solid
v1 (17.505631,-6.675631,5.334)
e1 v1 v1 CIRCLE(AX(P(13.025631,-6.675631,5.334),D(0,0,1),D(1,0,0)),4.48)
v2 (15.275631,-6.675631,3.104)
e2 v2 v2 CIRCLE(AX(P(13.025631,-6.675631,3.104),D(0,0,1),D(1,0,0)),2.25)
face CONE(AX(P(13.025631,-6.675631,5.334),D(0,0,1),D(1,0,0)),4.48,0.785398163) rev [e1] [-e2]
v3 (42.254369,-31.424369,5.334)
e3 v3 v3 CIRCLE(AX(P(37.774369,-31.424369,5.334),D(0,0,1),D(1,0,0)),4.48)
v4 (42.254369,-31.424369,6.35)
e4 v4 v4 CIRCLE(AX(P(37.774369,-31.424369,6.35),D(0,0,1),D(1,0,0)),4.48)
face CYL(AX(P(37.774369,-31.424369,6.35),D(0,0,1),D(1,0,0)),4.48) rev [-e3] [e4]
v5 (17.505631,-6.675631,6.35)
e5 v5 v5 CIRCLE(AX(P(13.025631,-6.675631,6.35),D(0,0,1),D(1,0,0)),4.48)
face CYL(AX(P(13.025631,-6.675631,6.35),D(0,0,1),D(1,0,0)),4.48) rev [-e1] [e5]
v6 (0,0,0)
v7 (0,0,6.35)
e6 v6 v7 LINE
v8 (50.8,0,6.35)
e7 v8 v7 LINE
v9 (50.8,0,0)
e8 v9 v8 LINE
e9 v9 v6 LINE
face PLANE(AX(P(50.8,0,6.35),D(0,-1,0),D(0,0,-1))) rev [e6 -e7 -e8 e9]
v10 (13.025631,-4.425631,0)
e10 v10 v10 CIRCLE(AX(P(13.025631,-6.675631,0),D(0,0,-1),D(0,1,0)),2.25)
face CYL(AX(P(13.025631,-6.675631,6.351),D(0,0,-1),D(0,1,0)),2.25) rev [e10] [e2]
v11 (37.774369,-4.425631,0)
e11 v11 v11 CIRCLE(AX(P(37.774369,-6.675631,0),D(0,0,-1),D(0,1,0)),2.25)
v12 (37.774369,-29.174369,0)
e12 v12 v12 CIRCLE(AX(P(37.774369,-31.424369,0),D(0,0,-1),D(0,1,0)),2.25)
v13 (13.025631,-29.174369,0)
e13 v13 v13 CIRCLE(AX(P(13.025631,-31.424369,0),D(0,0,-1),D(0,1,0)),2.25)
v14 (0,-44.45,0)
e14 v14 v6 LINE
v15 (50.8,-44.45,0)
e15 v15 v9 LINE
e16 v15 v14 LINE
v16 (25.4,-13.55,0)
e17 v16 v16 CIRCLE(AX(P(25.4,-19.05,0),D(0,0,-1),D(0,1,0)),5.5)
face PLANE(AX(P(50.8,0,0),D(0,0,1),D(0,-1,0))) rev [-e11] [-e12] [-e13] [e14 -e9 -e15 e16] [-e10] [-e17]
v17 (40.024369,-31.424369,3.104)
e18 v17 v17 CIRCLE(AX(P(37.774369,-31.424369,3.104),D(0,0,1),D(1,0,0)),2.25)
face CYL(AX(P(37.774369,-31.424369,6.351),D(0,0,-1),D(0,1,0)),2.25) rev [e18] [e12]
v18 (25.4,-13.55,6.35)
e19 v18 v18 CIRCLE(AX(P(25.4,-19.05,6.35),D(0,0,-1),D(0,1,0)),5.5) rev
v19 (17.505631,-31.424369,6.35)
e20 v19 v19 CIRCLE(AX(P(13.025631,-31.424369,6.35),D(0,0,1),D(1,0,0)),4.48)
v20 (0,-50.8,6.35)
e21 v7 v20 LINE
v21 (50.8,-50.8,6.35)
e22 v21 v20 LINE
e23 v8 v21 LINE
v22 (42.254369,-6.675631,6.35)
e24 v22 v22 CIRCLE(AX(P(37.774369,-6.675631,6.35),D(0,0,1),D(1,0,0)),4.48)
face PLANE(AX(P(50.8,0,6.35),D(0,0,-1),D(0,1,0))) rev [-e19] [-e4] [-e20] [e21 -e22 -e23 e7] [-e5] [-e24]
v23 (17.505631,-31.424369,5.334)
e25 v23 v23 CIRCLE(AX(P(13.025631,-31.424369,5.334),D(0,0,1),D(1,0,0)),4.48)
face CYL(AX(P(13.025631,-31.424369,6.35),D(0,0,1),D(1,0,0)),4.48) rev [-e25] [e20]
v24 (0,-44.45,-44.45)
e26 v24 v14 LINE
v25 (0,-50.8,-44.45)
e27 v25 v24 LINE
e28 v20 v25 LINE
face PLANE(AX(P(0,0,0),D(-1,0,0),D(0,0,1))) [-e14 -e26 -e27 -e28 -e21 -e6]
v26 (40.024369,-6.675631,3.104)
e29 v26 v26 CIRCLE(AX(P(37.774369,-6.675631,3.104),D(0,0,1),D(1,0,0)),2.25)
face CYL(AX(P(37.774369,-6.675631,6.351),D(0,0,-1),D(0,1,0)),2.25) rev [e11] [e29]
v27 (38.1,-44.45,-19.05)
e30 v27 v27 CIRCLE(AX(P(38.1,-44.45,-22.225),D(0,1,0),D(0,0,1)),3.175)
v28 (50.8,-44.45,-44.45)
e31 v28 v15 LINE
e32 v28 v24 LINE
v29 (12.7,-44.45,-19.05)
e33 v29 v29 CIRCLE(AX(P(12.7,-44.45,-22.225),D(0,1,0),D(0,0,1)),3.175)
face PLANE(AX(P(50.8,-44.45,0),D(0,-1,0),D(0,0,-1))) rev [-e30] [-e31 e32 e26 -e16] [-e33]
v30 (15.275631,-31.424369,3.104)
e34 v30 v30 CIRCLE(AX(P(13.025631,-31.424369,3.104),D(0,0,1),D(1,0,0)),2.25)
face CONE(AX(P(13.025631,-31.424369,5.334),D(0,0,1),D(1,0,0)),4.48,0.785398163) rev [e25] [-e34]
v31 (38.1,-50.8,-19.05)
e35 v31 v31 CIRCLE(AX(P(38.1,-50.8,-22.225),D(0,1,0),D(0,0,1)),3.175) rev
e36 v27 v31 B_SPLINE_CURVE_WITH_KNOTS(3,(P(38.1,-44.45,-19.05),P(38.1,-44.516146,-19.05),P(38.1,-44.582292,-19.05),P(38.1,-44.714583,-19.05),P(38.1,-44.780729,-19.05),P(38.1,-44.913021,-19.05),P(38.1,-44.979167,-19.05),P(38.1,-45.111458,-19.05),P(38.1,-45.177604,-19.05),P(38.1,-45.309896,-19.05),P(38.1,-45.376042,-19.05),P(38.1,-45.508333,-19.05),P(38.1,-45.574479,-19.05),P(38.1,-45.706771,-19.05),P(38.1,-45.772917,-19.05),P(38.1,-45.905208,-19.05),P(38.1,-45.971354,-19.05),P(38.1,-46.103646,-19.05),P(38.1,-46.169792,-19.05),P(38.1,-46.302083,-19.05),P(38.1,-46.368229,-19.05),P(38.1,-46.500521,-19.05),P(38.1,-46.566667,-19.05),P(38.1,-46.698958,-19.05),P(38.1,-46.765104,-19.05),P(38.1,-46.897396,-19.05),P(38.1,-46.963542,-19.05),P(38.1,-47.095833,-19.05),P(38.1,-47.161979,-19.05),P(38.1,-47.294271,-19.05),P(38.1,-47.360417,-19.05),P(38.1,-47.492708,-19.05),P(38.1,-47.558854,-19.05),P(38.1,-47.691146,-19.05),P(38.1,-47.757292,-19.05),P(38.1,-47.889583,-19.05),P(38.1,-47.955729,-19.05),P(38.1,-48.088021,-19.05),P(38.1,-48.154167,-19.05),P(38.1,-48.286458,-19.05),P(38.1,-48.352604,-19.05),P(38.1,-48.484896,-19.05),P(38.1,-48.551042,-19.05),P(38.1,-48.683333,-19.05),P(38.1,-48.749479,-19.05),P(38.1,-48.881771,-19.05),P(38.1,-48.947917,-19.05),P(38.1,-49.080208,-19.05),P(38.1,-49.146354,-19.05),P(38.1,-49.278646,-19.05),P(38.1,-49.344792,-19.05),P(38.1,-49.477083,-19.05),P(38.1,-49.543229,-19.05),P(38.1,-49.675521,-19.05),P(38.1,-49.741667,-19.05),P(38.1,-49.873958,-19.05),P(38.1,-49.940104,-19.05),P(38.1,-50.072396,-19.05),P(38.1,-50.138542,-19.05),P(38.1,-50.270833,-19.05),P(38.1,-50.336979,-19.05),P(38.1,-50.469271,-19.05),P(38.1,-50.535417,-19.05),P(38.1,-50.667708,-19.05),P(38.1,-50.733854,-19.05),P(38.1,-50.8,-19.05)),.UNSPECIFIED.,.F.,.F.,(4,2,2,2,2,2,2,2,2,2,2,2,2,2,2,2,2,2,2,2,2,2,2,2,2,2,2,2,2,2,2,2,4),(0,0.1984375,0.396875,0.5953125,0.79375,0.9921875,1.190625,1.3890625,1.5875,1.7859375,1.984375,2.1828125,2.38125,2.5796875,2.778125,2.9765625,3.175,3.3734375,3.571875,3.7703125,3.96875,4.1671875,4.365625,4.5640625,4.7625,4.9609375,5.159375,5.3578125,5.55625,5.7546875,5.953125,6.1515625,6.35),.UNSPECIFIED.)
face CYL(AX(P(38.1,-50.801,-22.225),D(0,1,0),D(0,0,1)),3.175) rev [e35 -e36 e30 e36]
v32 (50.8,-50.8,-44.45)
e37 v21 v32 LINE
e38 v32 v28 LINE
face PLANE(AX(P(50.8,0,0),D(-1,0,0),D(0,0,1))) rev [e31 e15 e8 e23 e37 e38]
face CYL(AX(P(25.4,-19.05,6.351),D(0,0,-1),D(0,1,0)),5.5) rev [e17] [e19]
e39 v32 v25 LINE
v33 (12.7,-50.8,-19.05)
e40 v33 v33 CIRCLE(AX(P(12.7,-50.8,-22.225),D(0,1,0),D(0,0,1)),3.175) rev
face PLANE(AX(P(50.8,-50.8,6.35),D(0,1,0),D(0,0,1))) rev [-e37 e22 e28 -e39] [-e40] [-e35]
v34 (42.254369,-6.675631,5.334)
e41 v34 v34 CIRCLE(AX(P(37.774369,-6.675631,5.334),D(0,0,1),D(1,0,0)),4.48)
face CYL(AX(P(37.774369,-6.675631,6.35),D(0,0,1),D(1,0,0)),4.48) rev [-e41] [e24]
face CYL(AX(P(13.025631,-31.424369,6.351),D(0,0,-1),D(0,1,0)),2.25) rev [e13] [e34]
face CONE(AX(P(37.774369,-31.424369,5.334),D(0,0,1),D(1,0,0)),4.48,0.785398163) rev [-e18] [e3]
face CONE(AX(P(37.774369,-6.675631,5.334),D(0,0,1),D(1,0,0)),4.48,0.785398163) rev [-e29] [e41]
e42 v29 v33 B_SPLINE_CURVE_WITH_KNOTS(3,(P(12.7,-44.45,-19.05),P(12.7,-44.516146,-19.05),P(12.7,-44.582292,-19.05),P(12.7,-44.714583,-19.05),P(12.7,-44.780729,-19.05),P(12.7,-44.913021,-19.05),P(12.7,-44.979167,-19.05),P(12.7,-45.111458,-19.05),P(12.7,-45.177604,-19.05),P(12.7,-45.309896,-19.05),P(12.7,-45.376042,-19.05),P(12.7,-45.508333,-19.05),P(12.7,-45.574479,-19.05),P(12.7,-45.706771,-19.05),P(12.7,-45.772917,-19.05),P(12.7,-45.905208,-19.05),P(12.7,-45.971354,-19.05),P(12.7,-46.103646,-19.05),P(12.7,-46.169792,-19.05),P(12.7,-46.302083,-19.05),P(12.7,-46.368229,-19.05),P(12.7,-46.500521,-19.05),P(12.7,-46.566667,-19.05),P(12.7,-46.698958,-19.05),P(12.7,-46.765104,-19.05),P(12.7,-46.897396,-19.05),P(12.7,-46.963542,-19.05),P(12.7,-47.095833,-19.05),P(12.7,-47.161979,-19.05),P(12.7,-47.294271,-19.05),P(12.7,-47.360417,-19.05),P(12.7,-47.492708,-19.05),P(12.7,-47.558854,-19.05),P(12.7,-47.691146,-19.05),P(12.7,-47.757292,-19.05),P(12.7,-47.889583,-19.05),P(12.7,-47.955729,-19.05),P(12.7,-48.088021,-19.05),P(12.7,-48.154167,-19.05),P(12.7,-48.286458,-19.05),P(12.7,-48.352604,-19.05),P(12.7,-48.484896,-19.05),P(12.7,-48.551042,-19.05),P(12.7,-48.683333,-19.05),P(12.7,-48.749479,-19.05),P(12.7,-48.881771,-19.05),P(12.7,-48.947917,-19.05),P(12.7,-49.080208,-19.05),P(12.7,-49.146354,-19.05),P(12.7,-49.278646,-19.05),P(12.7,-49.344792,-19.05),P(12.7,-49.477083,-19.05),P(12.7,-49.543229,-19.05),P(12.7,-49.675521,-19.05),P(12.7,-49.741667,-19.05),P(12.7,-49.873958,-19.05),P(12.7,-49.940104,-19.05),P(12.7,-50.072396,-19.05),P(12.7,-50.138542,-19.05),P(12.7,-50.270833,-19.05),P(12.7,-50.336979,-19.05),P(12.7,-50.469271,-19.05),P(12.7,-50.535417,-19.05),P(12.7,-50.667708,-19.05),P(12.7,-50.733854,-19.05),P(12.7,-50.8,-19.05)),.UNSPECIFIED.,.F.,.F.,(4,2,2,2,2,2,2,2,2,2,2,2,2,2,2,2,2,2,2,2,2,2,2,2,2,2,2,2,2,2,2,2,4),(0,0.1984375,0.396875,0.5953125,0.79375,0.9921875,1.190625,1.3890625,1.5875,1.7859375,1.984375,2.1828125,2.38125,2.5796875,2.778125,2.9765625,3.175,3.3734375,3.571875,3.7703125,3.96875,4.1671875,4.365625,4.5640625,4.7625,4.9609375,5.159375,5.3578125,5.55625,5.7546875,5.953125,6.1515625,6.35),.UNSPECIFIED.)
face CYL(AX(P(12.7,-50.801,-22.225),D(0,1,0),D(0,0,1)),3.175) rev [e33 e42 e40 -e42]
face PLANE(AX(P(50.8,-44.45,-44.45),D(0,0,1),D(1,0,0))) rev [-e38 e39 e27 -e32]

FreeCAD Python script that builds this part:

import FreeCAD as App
import Part
import Sketcher

V = App.Vector
Q = App.Units.Quantity


def add_polygon(sketch, points):
    """Adds a closed chain of lines whose ends are joined by coincident constraints."""
    first, n = sketch.GeometryCount, len(points)
    for a, b in zip(points, points[1:] + points[:1]):
        sketch.addGeometry(Part.LineSegment(App.Vector(*a, 0), App.Vector(*b, 0)), False)
    for i in range(n):
        sketch.addConstraint(Sketcher.Constraint("Coincident", first + i, 2, first + (i + 1) % n, 1))

doc = App.newDocument("Part")
params = doc.addObject("Spreadsheet::Sheet", "Params")
for row, (alias, value) in enumerate([
    ("sketch1_width", "2 in"),
    ("sketch1_width2", "1.75 in"),
    ("pad1_length", "2 in"),
    ("sketch7_diameter", "0.25 in"),
    ("sketch8_diameter", "0.25 in"),
    ("sketch9_height", "2 in"),
    ("sketch9_height2", "0.04 in"),
    ("groove_angle", "360 deg"),
    ("linearpattern_pitch", "24.748737 mm"),
    ("linearpattern2_pitch", "35 mm"),
    ("linearpattern3_pitch", "24.748737 mm"),
], start=1):
    params.set(f"A{row}", alias)
    params.set(f"B{row}", "=" + value)
    params.setAlias(f"B{row}", alias)

body = doc.addObject("PartDesign::Body", "Body")

# Sketch on YZ plane
sketch1 = body.newObject("Sketcher::SketchObject", "Sketch")
sketch1.AttachmentSupport = (doc.getObject("YZ_Plane"), [""])
sketch1.MapMode = "FlatFace"
add_polygon(sketch1, [(-44, 0), (0, 0), (0, 6), (-51, 6), (-51, -44), (-44, -44)])  # lines 0-5
sketch1.addConstraint([
    Sketcher.Constraint("Horizontal", 0),
    Sketcher.Constraint("Vertical", 1),
    Sketcher.Constraint("Horizontal", 2),
    Sketcher.Constraint("Vertical", 3),
    Sketcher.Constraint("Horizontal", 4),
    Sketcher.Constraint("Vertical", 5),
    Sketcher.Constraint("Coincident", 0, 2, -1, 1),
    Sketcher.Constraint("Equal", 4, 1),
    Sketcher.Constraint("Equal", 2, 3),
    Sketcher.Constraint("DistanceX", 2, 2, 2, 1, Q("2 in")),
    Sketcher.Constraint("DistanceX", 0, 1, 0, 2, Q("1.75 in")),
])
sketch1.setExpression("Constraints[15]", "Params.sketch1_width")
sketch1.setExpression("Constraints[16]", "Params.sketch1_width2")
pad1 = body.newObject("PartDesign::Pad", "Pad")
pad1.Profile = sketch1
pad1.setExpression("Length", "Params.pad1_length")

# Sketch on XY plane
sketch2 = body.newObject("Sketcher::SketchObject", "Sketch001")
sketch2.AttachmentSupport = (doc.getObject("XY_Plane"), [""])
sketch2.MapMode = "FlatFace"
sketch2.addGeometry(Part.Circle(V(13, -6.7, 0), V(0, 0, 1), 2.2), False)
sketch2.addConstraint([
    Sketcher.Constraint("Diameter", 0, Q("4.5 mm")),
    Sketcher.Constraint("DistanceX", -1, 1, 0, 3, Q("13.025631 mm")),
    Sketcher.Constraint("DistanceY", 0, 3, -1, 1, Q("6.675631 mm")),
])
pocket1 = body.newObject("PartDesign::Pocket", "Pocket")
pocket1.Profile = sketch2
pocket1.Type = "UpToFirst"
pocket1.Reversed = True

# Sketch on XY plane
sketch3 = body.newObject("Sketcher::SketchObject", "Sketch002")
sketch3.AttachmentSupport = (doc.getObject("XY_Plane"), [""])
sketch3.MapMode = "FlatFace"
sketch3.addGeometry(Part.Circle(V(13, -31.4, 0), V(0, 0, 1), 2.2), False)
sketch3.addConstraint([
    Sketcher.Constraint("Diameter", 0, Q("4.5 mm")),
    Sketcher.Constraint("DistanceX", -1, 1, 0, 3, Q("13.025631 mm")),
    Sketcher.Constraint("DistanceY", 0, 3, -1, 1, Q("31.424369 mm")),
])
pocket2 = body.newObject("PartDesign::Pocket", "Pocket001")
pocket2.Profile = sketch3
pocket2.Type = "UpToFirst"
pocket2.Reversed = True

# Sketch on XY plane
sketch4 = body.newObject("Sketcher::SketchObject", "Sketch003")
sketch4.AttachmentSupport = (doc.getObject("XY_Plane"), [""])
sketch4.MapMode = "FlatFace"
sketch4.addGeometry(Part.Circle(V(37.8, -31.4, 0), V(0, 0, 1), 2.2), False)
sketch4.addConstraint([
    Sketcher.Constraint("Diameter", 0, Q("4.5 mm")),
    Sketcher.Constraint("DistanceX", -1, 1, 0, 3, Q("37.774369 mm")),
    Sketcher.Constraint("DistanceY", 0, 3, -1, 1, Q("31.424369 mm")),
])
pocket3 = body.newObject("PartDesign::Pocket", "Pocket002")
pocket3.Profile = sketch4
pocket3.Type = "UpToFirst"
pocket3.Reversed = True

# Sketch on XY plane
sketch5 = body.newObject("Sketcher::SketchObject", "Sketch004")
sketch5.AttachmentSupport = (doc.getObject("XY_Plane"), [""])
sketch5.MapMode = "FlatFace"
sketch5.addGeometry(Part.Circle(V(37.8, -6.7, 0), V(0, 0, 1), 2.2), False)
sketch5.addConstraint([
    Sketcher.Constraint("Diameter", 0, Q("4.5 mm")),
    Sketcher.Constraint("DistanceX", -1, 1, 0, 3, Q("37.774369 mm")),
    Sketcher.Constraint("DistanceY", 0, 3, -1, 1, Q("6.675631 mm")),
])
pocket4 = body.newObject("PartDesign::Pocket", "Pocket003")
pocket4.Profile = sketch5
pocket4.Type = "UpToFirst"
pocket4.Reversed = True

# Sketch on XY plane
sketch6 = body.newObject("Sketcher::SketchObject", "Sketch005")
sketch6.AttachmentSupport = (doc.getObject("XY_Plane"), [""])
sketch6.MapMode = "FlatFace"
sketch6.addGeometry(Part.Circle(V(25, -19, 0), V(0, 0, 1), 6), False)
sketch6.addConstraint([
    Sketcher.Constraint("DistanceX", -1, 1, 0, 3, Q("1 in")),
    Sketcher.Constraint("Diameter", 0, Q("11 mm")),
    Sketcher.Constraint("DistanceY", 0, 3, -1, 1, Q("0.75 in")),
])
pocket5 = body.newObject("PartDesign::Pocket", "Pocket004")
pocket5.Profile = sketch6
pocket5.Type = "UpToFirst"
pocket5.Reversed = True

# Sketch on XZ plane
sketch7 = body.newObject("Sketcher::SketchObject", "Sketch006")
sketch7.AttachmentSupport = (doc.getObject("XZ_Plane"), [""])
sketch7.MapMode = "FlatFace"
sketch7.AttachmentOffset = App.Placement(V(0, 0, 1.75 * 25.4), App.Rotation())
sketch7.addGeometry(Part.Circle(V(12.7, -22.2, 0), V(0, 0, 1), 3.2), False)
sketch7.addConstraint([
    Sketcher.Constraint("Diameter", 0, Q("0.25 in")),
    Sketcher.Constraint("DistanceX", -1, 1, 0, 3, Q("0.5 in")),
    Sketcher.Constraint("DistanceY", 0, 3, -1, 1, Q("0.875 in")),
])
sketch7.setExpression("Constraints[0]", "Params.sketch7_diameter")
pocket6 = body.newObject("PartDesign::Pocket", "Pocket005")
pocket6.Profile = sketch7
pocket6.Type = "UpToFirst"
pocket6.Reversed = True

# Sketch on XZ plane
sketch8 = body.newObject("Sketcher::SketchObject", "Sketch007")
sketch8.AttachmentSupport = (doc.getObject("XZ_Plane"), [""])
sketch8.MapMode = "FlatFace"
sketch8.AttachmentOffset = App.Placement(V(0, 0, 1.75 * 25.4), App.Rotation())
sketch8.addGeometry(Part.Circle(V(38.1, -22.2, 0), V(0, 0, 1), 3.2), False)
sketch8.addConstraint([
    Sketcher.Constraint("Diameter", 0, Q("0.25 in")),
    Sketcher.Constraint("DistanceX", -1, 1, 0, 3, Q("1.5 in")),
    Sketcher.Constraint("DistanceY", 0, 3, -1, 1, Q("0.875 in")),
])
sketch8.setExpression("Constraints[0]", "Params.sketch8_diameter")
pocket7 = body.newObject("PartDesign::Pocket", "Pocket006")
pocket7.Profile = sketch8
pocket7.Type = "UpToFirst"
pocket7.Reversed = True

# Sketch on YZ plane
sketch9 = body.newObject("Sketcher::SketchObject", "Sketch008")
sketch9.AttachmentSupport = (doc.getObject("YZ_Plane"), [""])
sketch9.MapMode = "FlatFace"
sketch9.AttachmentOffset = App.Placement(V(0, 0, 13.025631), App.Rotation())
add_polygon(sketch9, [(-6.7, -44.5), (-6.7, 6.3), (-11.2, 6.3), (-11.2, 5.3), (-8.8, 3), (-8.8, -44.5)])  # lines 0-5
sketch9.addGeometry(Part.LineSegment(V(-6.7, 6.3, 0), V(-6.7, -44.5, 0)), True)  # axis
sketch9.addConstraint([
    Sketcher.Constraint("Vertical", 0),
    Sketcher.Constraint("Horizontal", 1),
    Sketcher.Constraint("Vertical", 2),
    Sketcher.Constraint("Vertical", 4),
    Sketcher.Constraint("Horizontal", 5),
    Sketcher.Constraint("Vertical", 6),
    Sketcher.Constraint("Coincident", 6, 1, 0, 2),
    Sketcher.Constraint("Horizontal", 4, 2, 6, 2),
    Sketcher.Constraint("DistanceY", 0, 1, 0, 2, Q("2 in")),
    Sketcher.Constraint("Angle", 3, Q("-45 deg")),
    Sketcher.Constraint("DistanceY", 2, 2, 2, 1, Q("0.04 in")),
    Sketcher.Constraint("DistanceY", -1, 1, 0, 2, Q("0.25 in")),
    Sketcher.Constraint("DistanceX", 1, 2, 1, 1, Q("4.48 mm")),
    Sketcher.Constraint("DistanceX", 5, 1, 5, 2, Q("2.15 mm")),
    Sketcher.Constraint("DistanceX", 0, 2, -1, 1, Q("6.675631 mm")),
])
sketch9.setExpression("Constraints[14]", "Params.sketch9_height")
sketch9.setExpression("Constraints[16]", "Params.sketch9_height2")
groove = body.newObject("PartDesign::Groove", "Groove")
groove.Profile = sketch9
groove.ReferenceAxis = (sketch9, ["Axis0"])
groove.setExpression("Angle", "Params.groove_angle")
doc.recompute()

linearpattern = body.newObject("PartDesign::LinearPattern", "LinearPattern")
linearpattern.Originals = [groove]
linearpattern.Direction = (doc.getObject("X_Axis"), [""])
linearpattern.Mode = "offset"
linearpattern.setExpression("Offset", "Params.linearpattern_pitch")
linearpattern.Occurrences = 2
body.Tip = linearpattern
doc.recompute()

datumline = body.newObject("PartDesign::Line", "DatumLine")
datumline.Placement = App.Placement(V(0, 0, 0), App.Rotation(V(0, 0, 1), V(0.707106781, -0.707106781, 0)))
linearpattern2 = body.newObject("PartDesign::LinearPattern", "LinearPattern001")
linearpattern2.Originals = [groove]
linearpattern2.Direction = (datumline, [""])
linearpattern2.Mode = "offset"
linearpattern2.setExpression("Offset", "Params.linearpattern2_pitch")
linearpattern2.Occurrences = 2
body.Tip = linearpattern2
doc.recompute()

linearpattern3 = body.newObject("PartDesign::LinearPattern", "LinearPattern002")
linearpattern3.Originals = [groove]
linearpattern3.Direction = (doc.getObject("Y_Axis"), [""])
linearpattern3.Mode = "offset"
linearpattern3.setExpression("Offset", "Params.linearpattern3_pitch")
linearpattern3.Occurrences = 2
linearpattern3.Reversed = True
body.Tip = linearpattern3

doc.recompute()
